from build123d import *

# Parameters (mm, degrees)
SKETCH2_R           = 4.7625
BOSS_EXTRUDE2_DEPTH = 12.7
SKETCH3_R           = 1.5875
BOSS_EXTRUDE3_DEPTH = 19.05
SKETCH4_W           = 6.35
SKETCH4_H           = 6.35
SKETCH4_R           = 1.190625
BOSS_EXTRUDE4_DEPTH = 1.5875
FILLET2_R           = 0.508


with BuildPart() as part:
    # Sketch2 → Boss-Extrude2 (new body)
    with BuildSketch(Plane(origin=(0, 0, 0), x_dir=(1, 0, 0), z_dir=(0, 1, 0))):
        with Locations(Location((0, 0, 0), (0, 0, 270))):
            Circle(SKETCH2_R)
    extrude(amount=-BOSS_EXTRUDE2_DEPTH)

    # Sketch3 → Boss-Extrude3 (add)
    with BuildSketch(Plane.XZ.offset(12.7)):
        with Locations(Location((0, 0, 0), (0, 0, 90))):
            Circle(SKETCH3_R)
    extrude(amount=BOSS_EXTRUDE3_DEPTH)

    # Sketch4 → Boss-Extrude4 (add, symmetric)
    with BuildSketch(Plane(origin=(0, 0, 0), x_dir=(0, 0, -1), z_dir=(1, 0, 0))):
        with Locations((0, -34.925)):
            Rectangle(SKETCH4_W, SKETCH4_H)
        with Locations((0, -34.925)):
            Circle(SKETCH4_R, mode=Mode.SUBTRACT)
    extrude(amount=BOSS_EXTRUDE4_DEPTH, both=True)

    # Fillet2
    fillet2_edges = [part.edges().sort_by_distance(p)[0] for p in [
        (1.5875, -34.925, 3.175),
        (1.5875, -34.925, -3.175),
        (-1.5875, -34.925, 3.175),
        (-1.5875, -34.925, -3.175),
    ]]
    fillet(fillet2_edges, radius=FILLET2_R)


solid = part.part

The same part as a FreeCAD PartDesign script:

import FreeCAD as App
import Part
import Sketcher

V = App.Vector
Q = App.Units.Quantity


def edges_at(feature, points):
    """Names of the edges that pass closest to the given points."""
    edges = feature.Shape.Edges
    near = lambda p: min(range(len(edges)), key=lambda i: edges[i].distToShape(Part.Vertex(*p))[0])
    return sorted({f"Edge{near(p) + 1}" for p in points})

doc = App.newDocument("Part")
body = doc.addObject("PartDesign::Body", "Body")

sketch1 = body.newObject("Sketcher::SketchObject", "Sketch")
sketch1.AttachmentSupport = (doc.getObject("XZ_Plane"), [""])
sketch1.MapMode = "FlatFace"
sketch1.addGeometry(Part.Circle(V(0, 0, 0), V(0, 0, 1), 4.7625), False)
sketch1.addConstraint([
    Sketcher.Constraint("Coincident", 0, 3, -1, 1),
    Sketcher.Constraint("Diameter", 0, Q("0.375 in")),
])
pad1 = body.newObject("PartDesign::Pad", "Pad")
pad1.Profile = sketch1
pad1.Length = Q("0.5 in")

sketch2 = body.newObject("Sketcher::SketchObject", "Sketch001")
sketch2.AttachmentSupport = (doc.getObject("XZ_Plane"), [""])
sketch2.MapMode = "FlatFace"
sketch2.AttachmentOffset = App.Placement(V(0, 0, 0.5 * 25.4), App.Rotation())
sketch2.addGeometry(Part.Circle(V(0, 0, 0), V(0, 0, 1), 1.5875), False)
sketch2.addConstraint([
    Sketcher.Constraint("Coincident", 0, 3, -1, 1),
    Sketcher.Constraint("Diameter", 0, Q("0.125 in")),
])
pad2 = body.newObject("PartDesign::Pad", "Pad001")
pad2.Profile = sketch2
pad2.Length = Q("0.75 in")

sketch3 = body.newObject("Sketcher::SketchObject", "Sketch002")
sketch3.AttachmentSupport = (doc.getObject("YZ_Plane"), [""])
sketch3.MapMode = "FlatFace"
sketch3.addGeometry([
    Part.LineSegment(V(-31.75, 3.175, 0), V(-38.1, 3.175, 0)),
    Part.LineSegment(V(-38.1, 3.175, 0), V(-38.1, -3.175, 0)),
    Part.LineSegment(V(-38.1, -3.175, 0), V(-31.75, -3.175, 0)),
    Part.LineSegment(V(-31.75, -3.175, 0), V(-31.75, 3.175, 0)),
    Part.Circle(V(-34.925, 0, 0), V(0, 0, 1), 1.190625),
], False)
sketch3.addConstraint([
    Sketcher.Constraint("Coincident", 0, 2, 1, 1),
    Sketcher.Constraint("Coincident", 1, 2, 2, 1),
    Sketcher.Constraint("Coincident", 2, 2, 3, 1),
    Sketcher.Constraint("Coincident", 3, 2, 0, 1),
    Sketcher.Constraint("Horizontal", 0),
    Sketcher.Constraint("Vertical", 1),
    Sketcher.Constraint("Horizontal", 2),
    Sketcher.Constraint("Vertical", 3),
    Sketcher.Constraint("PointOnObject", 4, 3, -1),
    Sketcher.Constraint("Equal", 2, 1),
    Sketcher.Constraint("Diameter", 4, Q("0.09375 in")),
    Sketcher.Constraint("DistanceX", 0, 2, 0, 1, Q("0.25 in")),
    Sketcher.Constraint("DistanceX", 0, 2, -1, 1, Q("1.5 in")),
    Sketcher.Constraint("DistanceX", 4, 3, -1, 1, Q("1.375 in")),
    Sketcher.Constraint("DistanceY", -1, 1, 0, 2, Q("0.125 in")),
])
pad3 = body.newObject("PartDesign::Pad", "Pad002")
pad3.Profile = sketch3
pad3.Length = Q("0.125 in")
pad3.Midplane = True
doc.recompute()

fillet = body.newObject("PartDesign::Fillet", "Fillet")
fillet.Base = (pad3, edges_at(pad3, [
    (1.587, -34.925, 3.175),
    (1.587, -34.925, -3.175),
    (-1.587, -34.925, 3.175),
    (-1.587, -34.925, -3.175),
]))
fillet.Radius = Q("0.02 in")

doc.recompute()
